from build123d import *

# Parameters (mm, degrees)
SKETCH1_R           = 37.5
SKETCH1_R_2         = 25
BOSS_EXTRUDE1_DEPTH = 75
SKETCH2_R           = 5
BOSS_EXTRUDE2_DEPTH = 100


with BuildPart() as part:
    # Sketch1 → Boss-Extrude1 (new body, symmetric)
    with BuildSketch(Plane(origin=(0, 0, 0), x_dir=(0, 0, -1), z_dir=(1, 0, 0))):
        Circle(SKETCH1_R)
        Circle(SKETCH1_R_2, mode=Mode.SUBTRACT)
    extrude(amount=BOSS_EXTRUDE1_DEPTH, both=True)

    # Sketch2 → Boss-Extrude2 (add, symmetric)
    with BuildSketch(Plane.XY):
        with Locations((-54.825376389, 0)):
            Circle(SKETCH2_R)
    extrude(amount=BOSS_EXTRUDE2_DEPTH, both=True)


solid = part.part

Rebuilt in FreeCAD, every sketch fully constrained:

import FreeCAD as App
import Part
import Sketcher
Q = App.Units.Quantity

doc = App.newDocument("Part")
body = doc.addObject("PartDesign::Body", "Body")

# Sketch on YZ plane
sketch1 = body.newObject("Sketcher::SketchObject", "Sketch")
sketch1.AttachmentSupport = (doc.getObject("YZ_Plane"), [""])
sketch1.MapMode = "FlatFace"
sketch1.addGeometry([
    Part.Circle(App.Vector(0, 0, 0), App.Vector(0, 0, 1), 38),
    Part.Circle(App.Vector(0, 0, 0), App.Vector(0, 0, 1), 25),
], False)
sketch1.addConstraint([
    Sketcher.Constraint("Coincident", 0, 3, -1, 1),
    Sketcher.Constraint("Coincident", 1, 3, -1, 1),
    Sketcher.Constraint("Diameter", 0, Q("75 mm")),
    Sketcher.Constraint("Diameter", 1, Q("50 mm")),
])
pad1 = body.newObject("PartDesign::Pad", "Pad")
pad1.Profile = sketch1
pad1.Length = 150
pad1.Midplane = True

# Sketch on XY plane
sketch2 = body.newObject("Sketcher::SketchObject", "Sketch001")
sketch2.AttachmentSupport = (doc.getObject("XY_Plane"), [""])
sketch2.MapMode = "FlatFace"
sketch2.addGeometry(Part.Circle(App.Vector(-55, 0, 0), App.Vector(0, 0, 1), 5), False)
sketch2.addConstraint([
    Sketcher.Constraint("PointOnObject", 0, 3, -1),
    Sketcher.Constraint("Diameter", 0, Q("10 mm")),
    Sketcher.Constraint("DistanceX", 0, 3, -1, 1, Q("54.825376 mm")),
])
pad2 = body.newObject("PartDesign::Pad", "Pad001")
pad2.Profile = sketch2
pad2.Length = 200
pad2.Midplane = True

doc.recompute()
